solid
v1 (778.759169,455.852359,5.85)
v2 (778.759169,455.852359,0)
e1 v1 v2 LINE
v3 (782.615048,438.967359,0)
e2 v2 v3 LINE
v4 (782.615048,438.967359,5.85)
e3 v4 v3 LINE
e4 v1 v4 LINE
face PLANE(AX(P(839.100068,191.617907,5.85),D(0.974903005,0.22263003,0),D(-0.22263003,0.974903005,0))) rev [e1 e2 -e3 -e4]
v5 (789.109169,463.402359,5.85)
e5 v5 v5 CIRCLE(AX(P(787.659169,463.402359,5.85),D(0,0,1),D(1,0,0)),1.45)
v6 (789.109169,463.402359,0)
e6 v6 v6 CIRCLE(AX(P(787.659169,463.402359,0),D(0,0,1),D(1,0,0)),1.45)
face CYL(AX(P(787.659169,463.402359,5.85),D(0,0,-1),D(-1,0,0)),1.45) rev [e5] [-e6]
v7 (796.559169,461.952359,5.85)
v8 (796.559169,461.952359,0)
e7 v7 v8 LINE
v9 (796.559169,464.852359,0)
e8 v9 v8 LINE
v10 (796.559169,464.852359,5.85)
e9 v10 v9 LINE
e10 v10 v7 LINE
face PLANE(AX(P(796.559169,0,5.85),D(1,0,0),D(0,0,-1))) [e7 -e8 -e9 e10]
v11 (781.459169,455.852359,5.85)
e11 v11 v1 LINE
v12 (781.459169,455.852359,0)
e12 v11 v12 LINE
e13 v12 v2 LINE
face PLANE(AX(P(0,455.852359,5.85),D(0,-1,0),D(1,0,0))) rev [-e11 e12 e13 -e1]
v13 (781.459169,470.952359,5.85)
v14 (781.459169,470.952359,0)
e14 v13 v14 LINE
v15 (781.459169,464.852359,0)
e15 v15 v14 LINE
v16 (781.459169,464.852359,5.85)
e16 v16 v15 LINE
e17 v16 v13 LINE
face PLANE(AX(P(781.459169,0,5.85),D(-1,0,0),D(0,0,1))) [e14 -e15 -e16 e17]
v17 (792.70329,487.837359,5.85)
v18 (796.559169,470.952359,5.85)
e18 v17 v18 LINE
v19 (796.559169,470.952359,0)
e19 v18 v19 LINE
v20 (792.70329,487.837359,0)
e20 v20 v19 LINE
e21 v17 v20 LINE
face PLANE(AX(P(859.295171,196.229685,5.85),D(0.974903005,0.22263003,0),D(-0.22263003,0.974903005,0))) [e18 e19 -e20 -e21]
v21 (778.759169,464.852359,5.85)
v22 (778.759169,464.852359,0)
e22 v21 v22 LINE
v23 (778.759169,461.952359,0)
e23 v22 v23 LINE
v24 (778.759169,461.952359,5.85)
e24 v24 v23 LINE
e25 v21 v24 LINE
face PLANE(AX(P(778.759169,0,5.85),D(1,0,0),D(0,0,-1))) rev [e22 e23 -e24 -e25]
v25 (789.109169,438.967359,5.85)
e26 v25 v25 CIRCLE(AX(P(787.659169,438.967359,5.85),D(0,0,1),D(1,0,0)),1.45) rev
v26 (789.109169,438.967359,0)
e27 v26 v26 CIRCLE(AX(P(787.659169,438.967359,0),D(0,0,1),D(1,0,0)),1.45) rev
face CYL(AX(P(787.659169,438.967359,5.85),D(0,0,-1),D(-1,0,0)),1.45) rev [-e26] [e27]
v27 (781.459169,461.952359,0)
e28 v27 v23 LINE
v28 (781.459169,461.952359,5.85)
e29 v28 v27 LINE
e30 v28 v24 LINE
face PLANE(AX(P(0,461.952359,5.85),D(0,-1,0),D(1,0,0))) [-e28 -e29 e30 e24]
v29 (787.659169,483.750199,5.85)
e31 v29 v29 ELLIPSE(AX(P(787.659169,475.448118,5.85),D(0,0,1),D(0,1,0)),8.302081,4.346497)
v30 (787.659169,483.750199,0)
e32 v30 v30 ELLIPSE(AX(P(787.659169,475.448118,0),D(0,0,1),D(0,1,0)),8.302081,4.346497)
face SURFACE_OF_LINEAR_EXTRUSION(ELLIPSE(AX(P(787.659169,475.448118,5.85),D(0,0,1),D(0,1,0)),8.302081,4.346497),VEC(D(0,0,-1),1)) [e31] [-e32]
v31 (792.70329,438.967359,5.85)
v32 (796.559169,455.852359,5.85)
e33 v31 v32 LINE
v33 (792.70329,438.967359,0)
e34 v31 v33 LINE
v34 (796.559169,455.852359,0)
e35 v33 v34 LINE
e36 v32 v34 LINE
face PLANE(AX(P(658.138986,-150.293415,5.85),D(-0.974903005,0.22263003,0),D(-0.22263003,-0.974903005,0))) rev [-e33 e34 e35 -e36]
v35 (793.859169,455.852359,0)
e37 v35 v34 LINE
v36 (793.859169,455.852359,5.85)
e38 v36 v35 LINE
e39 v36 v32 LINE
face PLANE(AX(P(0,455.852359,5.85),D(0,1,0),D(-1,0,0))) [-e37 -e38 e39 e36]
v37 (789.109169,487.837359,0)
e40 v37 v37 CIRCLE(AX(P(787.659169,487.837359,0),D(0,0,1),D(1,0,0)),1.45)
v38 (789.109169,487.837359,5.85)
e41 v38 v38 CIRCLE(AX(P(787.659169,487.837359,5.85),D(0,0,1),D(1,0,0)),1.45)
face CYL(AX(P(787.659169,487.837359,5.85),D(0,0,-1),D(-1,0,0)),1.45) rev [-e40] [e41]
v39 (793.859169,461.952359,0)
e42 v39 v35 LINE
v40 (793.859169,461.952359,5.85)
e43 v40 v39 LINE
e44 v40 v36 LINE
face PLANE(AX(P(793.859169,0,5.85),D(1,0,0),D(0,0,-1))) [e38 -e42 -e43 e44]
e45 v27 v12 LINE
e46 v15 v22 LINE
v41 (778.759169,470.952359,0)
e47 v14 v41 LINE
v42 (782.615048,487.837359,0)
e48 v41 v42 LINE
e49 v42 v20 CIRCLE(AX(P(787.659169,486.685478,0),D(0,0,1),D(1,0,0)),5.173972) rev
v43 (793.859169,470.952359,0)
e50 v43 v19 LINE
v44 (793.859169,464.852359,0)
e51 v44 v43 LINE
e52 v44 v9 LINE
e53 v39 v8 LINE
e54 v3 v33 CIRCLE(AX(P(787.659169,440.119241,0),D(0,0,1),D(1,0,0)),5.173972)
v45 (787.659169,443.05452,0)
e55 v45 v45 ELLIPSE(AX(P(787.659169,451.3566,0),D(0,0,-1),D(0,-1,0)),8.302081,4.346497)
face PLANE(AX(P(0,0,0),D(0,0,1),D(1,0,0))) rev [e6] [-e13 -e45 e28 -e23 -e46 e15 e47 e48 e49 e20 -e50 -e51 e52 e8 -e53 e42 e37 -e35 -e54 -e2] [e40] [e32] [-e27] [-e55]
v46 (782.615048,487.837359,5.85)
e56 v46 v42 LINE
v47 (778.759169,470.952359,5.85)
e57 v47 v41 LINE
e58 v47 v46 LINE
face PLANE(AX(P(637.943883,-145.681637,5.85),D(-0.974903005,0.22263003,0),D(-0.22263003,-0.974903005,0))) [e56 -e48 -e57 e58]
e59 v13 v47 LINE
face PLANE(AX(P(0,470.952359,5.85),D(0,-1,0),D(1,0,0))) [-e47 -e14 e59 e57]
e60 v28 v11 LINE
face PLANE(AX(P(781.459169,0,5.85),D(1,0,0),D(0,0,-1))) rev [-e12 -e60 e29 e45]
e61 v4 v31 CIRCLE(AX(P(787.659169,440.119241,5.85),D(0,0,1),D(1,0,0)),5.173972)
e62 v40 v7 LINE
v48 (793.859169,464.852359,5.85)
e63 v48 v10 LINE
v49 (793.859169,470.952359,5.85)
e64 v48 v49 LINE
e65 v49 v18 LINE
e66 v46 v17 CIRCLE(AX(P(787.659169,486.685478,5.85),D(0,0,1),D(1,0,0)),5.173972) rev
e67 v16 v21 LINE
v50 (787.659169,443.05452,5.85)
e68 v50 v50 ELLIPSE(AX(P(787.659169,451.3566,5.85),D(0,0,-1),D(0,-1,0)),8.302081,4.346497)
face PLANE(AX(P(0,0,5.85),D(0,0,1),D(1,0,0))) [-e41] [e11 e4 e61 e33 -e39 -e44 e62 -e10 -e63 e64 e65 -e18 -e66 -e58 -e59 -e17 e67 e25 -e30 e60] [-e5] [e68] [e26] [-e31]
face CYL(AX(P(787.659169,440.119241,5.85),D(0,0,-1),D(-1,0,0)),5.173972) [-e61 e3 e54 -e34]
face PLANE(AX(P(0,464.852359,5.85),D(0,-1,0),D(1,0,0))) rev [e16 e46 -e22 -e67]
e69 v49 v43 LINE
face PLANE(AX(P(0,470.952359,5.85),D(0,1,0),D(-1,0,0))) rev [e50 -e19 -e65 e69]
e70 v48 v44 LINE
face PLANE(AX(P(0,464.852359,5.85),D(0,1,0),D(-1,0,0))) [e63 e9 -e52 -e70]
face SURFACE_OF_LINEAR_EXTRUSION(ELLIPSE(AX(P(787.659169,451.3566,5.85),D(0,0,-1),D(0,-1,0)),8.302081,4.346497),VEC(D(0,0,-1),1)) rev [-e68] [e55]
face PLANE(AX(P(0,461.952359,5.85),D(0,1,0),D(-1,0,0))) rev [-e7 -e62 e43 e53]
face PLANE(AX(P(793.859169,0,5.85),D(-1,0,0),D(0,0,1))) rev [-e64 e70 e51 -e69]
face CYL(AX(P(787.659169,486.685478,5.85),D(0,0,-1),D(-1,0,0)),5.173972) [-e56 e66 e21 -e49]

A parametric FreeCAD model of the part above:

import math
import FreeCAD as App
import Part
import Sketcher

V = App.Vector

doc = App.newDocument("Part")
params = doc.addObject("Spreadsheet::Sheet", "Params")
for row, (alias, value) in enumerate([
    ("sketch1_diameter", "2.9 mm"),
    ("sketch1_width", "2.7 mm"),
    ("sketch1_height", "2.9 mm"),
    ("sketch1_height2", "6.1 mm"),
    ("pad1_length", "5.85 mm"),
], start=1):
    params.set(f"A{row}", alias)
    params.set(f"B{row}", "=" + value)
    params.setAlias(f"B{row}", alias)

body = doc.addObject("PartDesign::Body", "Body")

sketch1 = doc.addObject("Sketcher::SketchObject", "Sketch")
body.addObject(sketch1)
sketch1.AttachmentSupport = (doc.XY_Plane, [""])
sketch1.MapMode = "FlatFace"
sketch1.addGeometry([
    Part.LineSegment(V(781.459169, 464.852359, 0), V(778.759169, 464.852359, 0)),
    Part.LineSegment(V(778.759169, 464.852359, 0), V(778.759169, 461.952359, 0)),
    Part.LineSegment(V(778.759169, 461.952359, 0), V(781.459169, 461.952359, 0)),
    Part.LineSegment(V(781.459169, 461.952359, 0), V(781.459169, 455.852359, 0)),
    Part.LineSegment(V(781.459169, 455.852359, 0), V(778.759169, 455.852359, 0)),
    Part.LineSegment(V(778.759169, 455.852359, 0), V(782.615048, 438.967359, 0)),
    Part.ArcOfCircle(Part.Circle(V(787.659169, 440.119241, 0), V(0, 0, 1), 5.173972), math.radians(-167.136446), math.radians(-12.863554)),
    Part.LineSegment(V(792.70329, 438.967359, 0), V(796.559169, 455.852359, 0)),
    Part.LineSegment(V(796.559169, 455.852359, 0), V(793.859169, 455.852359, 0)),
    Part.LineSegment(V(793.859169, 455.852359, 0), V(793.859169, 461.952359, 0)),
    Part.LineSegment(V(793.859169, 461.952359, 0), V(796.559169, 461.952359, 0)),
    Part.LineSegment(V(796.559169, 461.952359, 0), V(796.559169, 464.852359, 0)),
    Part.LineSegment(V(796.559169, 464.852359, 0), V(793.859169, 464.852359, 0)),
    Part.LineSegment(V(793.859169, 464.852359, 0), V(793.859169, 470.952359, 0)),
    Part.LineSegment(V(793.859169, 470.952359, 0), V(796.559169, 470.952359, 0)),
    Part.LineSegment(V(796.559169, 470.952359, 0), V(792.70329, 487.837359, 0)),
    Part.ArcOfCircle(Part.Circle(V(787.659169, 486.685478, 0), V(0, 0, 1), 5.173972), math.radians(12.863554), math.radians(167.136446)),
    Part.LineSegment(V(782.615048, 487.837359, 0), V(778.759169, 470.952359, 0)),
    Part.LineSegment(V(778.759169, 470.952359, 0), V(781.459169, 470.952359, 0)),
    Part.LineSegment(V(781.459169, 470.952359, 0), V(781.459169, 464.852359, 0)),
    Part.Circle(V(787.659169, 438.967359, 0), V(0, 0, 1), 1.45),
    Part.Ellipse(V(787.659169, 443.05452, 0), V(792.005666, 451.3566, 0), V(787.659169, 451.3566, 0)),
    Part.Circle(V(787.659169, 463.402359, 0), V(0, 0, 1), 1.45),
    Part.Ellipse(V(787.659169, 483.750199, 0), V(783.312671, 475.448118, 0), V(787.659169, 475.448118, 0)),
    Part.Circle(V(787.659169, 487.837359, 0), V(0, 0, 1), 1.45),
], False)
sketch1.addConstraint([
    Sketcher.Constraint("Block", 21),
    Sketcher.Constraint("Block", 23),
    Sketcher.Constraint("Coincident", 0, 2, 1, 1),
    Sketcher.Constraint("Coincident", 1, 2, 2, 1),
    Sketcher.Constraint("Coincident", 2, 2, 3, 1),
    Sketcher.Constraint("Coincident", 3, 2, 4, 1),
    Sketcher.Constraint("Coincident", 4, 2, 5, 1),
    Sketcher.Constraint("Tangent", 5, 2, 6, 1),
    Sketcher.Constraint("Tangent", 6, 2, 7, 1),
    Sketcher.Constraint("Coincident", 7, 2, 8, 1),
    Sketcher.Constraint("Coincident", 8, 2, 9, 1),
    Sketcher.Constraint("Coincident", 9, 2, 10, 1),
    Sketcher.Constraint("Coincident", 10, 2, 11, 1),
    Sketcher.Constraint("Coincident", 11, 2, 12, 1),
    Sketcher.Constraint("Coincident", 12, 2, 13, 1),
    Sketcher.Constraint("Coincident", 13, 2, 14, 1),
    Sketcher.Constraint("Coincident", 14, 2, 15, 1),
    Sketcher.Constraint("Tangent", 15, 2, 16, 1),
    Sketcher.Constraint("Tangent", 16, 2, 17, 1),
    Sketcher.Constraint("Coincident", 17, 2, 18, 1),
    Sketcher.Constraint("Coincident", 18, 2, 19, 1),
    Sketcher.Constraint("Coincident", 19, 2, 0, 1),
    Sketcher.Constraint("Horizontal", 0),
    Sketcher.Constraint("Vertical", 1),
    Sketcher.Constraint("Horizontal", 2),
    Sketcher.Constraint("Vertical", 3),
    Sketcher.Constraint("Horizontal", 4),
    Sketcher.Constraint("Horizontal", 8),
    Sketcher.Constraint("Vertical", 9),
    Sketcher.Constraint("Horizontal", 10),
    Sketcher.Constraint("Vertical", 11),
    Sketcher.Constraint("Horizontal", 12),
    Sketcher.Constraint("Vertical", 13),
    Sketcher.Constraint("Horizontal", 14),
    Sketcher.Constraint("Horizontal", 18),
    Sketcher.Constraint("Vertical", 19),
    Sketcher.Constraint("Equal", 6, 16),
    Sketcher.Constraint("Equal", 20, 22),
    Sketcher.Constraint("Equal", 22, 24),
    Sketcher.Constraint("Parallel", 5, 15),
    Sketcher.Constraint("Parallel", 7, 17),
    Sketcher.Constraint("Horizontal", 20, 3, 5, 2),
    Sketcher.Constraint("Horizontal", 5, 2, 6, 2),
    Sketcher.Constraint("Horizontal", 4, 2, 7, 2),
    Sketcher.Constraint("Horizontal", 2, 2, 9, 2),
    Sketcher.Constraint("Horizontal", 0, 2, 11, 2),
    Sketcher.Constraint("Horizontal", 24, 3, 15, 2),
    Sketcher.Constraint("Horizontal", 14, 2, 17, 2),
    Sketcher.Constraint("Vertical", 6, 3, 16, 3),
    Sketcher.Constraint("Vertical", 16, 3, 20, 3),
    Sketcher.Constraint("Vertical", 20, 3, 22, 3),
    Sketcher.Constraint("Vertical", 22, 3, 24, 3),
    Sketcher.Constraint("Vertical", 1, 2, 4, 2),
    Sketcher.Constraint("Vertical", 7, 2, 10, 2),
    Sketcher.Constraint("Vertical", 9, 2, 12, 2),
    Sketcher.Constraint("Vertical", 11, 2, 14, 2),
    Sketcher.Constraint("Vertical", 3, 2, 18, 2),
    Sketcher.Constraint("Equal", 4, 8),
    Sketcher.Constraint("Equal", 9, 13),
    Sketcher.Constraint("Diameter", 20, 2.9),
    Sketcher.Constraint("DistanceX", 0, 2, 0, 1, 2.7),
    Sketcher.Constraint("DistanceY", 1, 2, 1, 1, 2.9),
    Sketcher.Constraint("DistanceY", 3, 2, 3, 1, 6.1),
    Sketcher.Constraint("DistanceX", 0, 2, 22, 3, 8.9),
    Sketcher.Constraint("DistanceY", 20, 3, 24, 3, 48.87),
    Sketcher.Constraint("DistanceY", 22, 3, 0, 2, 1.45),
    Sketcher.Constraint("Radius", 6, 5.173972),
    Sketcher.Constraint("DistanceX", -1, 1, 6, 3, 787.659169),
    Sketcher.Constraint("DistanceY", -1, 1, 6, 3, 440.119241),
])
sketch1.setExpression("Constraints[59]", "Params.sketch1_diameter")
sketch1.setExpression("Constraints[60]", "Params.sketch1_width")
sketch1.setExpression("Constraints[61]", "Params.sketch1_height")
sketch1.setExpression("Constraints[62]", "Params.sketch1_height2")
pad1 = doc.addObject("PartDesign::Pad", "Pad")
body.addObject(pad1)
pad1.Profile = sketch1
pad1.setExpression("Length", "Params.pad1_length")

doc.recompute()
